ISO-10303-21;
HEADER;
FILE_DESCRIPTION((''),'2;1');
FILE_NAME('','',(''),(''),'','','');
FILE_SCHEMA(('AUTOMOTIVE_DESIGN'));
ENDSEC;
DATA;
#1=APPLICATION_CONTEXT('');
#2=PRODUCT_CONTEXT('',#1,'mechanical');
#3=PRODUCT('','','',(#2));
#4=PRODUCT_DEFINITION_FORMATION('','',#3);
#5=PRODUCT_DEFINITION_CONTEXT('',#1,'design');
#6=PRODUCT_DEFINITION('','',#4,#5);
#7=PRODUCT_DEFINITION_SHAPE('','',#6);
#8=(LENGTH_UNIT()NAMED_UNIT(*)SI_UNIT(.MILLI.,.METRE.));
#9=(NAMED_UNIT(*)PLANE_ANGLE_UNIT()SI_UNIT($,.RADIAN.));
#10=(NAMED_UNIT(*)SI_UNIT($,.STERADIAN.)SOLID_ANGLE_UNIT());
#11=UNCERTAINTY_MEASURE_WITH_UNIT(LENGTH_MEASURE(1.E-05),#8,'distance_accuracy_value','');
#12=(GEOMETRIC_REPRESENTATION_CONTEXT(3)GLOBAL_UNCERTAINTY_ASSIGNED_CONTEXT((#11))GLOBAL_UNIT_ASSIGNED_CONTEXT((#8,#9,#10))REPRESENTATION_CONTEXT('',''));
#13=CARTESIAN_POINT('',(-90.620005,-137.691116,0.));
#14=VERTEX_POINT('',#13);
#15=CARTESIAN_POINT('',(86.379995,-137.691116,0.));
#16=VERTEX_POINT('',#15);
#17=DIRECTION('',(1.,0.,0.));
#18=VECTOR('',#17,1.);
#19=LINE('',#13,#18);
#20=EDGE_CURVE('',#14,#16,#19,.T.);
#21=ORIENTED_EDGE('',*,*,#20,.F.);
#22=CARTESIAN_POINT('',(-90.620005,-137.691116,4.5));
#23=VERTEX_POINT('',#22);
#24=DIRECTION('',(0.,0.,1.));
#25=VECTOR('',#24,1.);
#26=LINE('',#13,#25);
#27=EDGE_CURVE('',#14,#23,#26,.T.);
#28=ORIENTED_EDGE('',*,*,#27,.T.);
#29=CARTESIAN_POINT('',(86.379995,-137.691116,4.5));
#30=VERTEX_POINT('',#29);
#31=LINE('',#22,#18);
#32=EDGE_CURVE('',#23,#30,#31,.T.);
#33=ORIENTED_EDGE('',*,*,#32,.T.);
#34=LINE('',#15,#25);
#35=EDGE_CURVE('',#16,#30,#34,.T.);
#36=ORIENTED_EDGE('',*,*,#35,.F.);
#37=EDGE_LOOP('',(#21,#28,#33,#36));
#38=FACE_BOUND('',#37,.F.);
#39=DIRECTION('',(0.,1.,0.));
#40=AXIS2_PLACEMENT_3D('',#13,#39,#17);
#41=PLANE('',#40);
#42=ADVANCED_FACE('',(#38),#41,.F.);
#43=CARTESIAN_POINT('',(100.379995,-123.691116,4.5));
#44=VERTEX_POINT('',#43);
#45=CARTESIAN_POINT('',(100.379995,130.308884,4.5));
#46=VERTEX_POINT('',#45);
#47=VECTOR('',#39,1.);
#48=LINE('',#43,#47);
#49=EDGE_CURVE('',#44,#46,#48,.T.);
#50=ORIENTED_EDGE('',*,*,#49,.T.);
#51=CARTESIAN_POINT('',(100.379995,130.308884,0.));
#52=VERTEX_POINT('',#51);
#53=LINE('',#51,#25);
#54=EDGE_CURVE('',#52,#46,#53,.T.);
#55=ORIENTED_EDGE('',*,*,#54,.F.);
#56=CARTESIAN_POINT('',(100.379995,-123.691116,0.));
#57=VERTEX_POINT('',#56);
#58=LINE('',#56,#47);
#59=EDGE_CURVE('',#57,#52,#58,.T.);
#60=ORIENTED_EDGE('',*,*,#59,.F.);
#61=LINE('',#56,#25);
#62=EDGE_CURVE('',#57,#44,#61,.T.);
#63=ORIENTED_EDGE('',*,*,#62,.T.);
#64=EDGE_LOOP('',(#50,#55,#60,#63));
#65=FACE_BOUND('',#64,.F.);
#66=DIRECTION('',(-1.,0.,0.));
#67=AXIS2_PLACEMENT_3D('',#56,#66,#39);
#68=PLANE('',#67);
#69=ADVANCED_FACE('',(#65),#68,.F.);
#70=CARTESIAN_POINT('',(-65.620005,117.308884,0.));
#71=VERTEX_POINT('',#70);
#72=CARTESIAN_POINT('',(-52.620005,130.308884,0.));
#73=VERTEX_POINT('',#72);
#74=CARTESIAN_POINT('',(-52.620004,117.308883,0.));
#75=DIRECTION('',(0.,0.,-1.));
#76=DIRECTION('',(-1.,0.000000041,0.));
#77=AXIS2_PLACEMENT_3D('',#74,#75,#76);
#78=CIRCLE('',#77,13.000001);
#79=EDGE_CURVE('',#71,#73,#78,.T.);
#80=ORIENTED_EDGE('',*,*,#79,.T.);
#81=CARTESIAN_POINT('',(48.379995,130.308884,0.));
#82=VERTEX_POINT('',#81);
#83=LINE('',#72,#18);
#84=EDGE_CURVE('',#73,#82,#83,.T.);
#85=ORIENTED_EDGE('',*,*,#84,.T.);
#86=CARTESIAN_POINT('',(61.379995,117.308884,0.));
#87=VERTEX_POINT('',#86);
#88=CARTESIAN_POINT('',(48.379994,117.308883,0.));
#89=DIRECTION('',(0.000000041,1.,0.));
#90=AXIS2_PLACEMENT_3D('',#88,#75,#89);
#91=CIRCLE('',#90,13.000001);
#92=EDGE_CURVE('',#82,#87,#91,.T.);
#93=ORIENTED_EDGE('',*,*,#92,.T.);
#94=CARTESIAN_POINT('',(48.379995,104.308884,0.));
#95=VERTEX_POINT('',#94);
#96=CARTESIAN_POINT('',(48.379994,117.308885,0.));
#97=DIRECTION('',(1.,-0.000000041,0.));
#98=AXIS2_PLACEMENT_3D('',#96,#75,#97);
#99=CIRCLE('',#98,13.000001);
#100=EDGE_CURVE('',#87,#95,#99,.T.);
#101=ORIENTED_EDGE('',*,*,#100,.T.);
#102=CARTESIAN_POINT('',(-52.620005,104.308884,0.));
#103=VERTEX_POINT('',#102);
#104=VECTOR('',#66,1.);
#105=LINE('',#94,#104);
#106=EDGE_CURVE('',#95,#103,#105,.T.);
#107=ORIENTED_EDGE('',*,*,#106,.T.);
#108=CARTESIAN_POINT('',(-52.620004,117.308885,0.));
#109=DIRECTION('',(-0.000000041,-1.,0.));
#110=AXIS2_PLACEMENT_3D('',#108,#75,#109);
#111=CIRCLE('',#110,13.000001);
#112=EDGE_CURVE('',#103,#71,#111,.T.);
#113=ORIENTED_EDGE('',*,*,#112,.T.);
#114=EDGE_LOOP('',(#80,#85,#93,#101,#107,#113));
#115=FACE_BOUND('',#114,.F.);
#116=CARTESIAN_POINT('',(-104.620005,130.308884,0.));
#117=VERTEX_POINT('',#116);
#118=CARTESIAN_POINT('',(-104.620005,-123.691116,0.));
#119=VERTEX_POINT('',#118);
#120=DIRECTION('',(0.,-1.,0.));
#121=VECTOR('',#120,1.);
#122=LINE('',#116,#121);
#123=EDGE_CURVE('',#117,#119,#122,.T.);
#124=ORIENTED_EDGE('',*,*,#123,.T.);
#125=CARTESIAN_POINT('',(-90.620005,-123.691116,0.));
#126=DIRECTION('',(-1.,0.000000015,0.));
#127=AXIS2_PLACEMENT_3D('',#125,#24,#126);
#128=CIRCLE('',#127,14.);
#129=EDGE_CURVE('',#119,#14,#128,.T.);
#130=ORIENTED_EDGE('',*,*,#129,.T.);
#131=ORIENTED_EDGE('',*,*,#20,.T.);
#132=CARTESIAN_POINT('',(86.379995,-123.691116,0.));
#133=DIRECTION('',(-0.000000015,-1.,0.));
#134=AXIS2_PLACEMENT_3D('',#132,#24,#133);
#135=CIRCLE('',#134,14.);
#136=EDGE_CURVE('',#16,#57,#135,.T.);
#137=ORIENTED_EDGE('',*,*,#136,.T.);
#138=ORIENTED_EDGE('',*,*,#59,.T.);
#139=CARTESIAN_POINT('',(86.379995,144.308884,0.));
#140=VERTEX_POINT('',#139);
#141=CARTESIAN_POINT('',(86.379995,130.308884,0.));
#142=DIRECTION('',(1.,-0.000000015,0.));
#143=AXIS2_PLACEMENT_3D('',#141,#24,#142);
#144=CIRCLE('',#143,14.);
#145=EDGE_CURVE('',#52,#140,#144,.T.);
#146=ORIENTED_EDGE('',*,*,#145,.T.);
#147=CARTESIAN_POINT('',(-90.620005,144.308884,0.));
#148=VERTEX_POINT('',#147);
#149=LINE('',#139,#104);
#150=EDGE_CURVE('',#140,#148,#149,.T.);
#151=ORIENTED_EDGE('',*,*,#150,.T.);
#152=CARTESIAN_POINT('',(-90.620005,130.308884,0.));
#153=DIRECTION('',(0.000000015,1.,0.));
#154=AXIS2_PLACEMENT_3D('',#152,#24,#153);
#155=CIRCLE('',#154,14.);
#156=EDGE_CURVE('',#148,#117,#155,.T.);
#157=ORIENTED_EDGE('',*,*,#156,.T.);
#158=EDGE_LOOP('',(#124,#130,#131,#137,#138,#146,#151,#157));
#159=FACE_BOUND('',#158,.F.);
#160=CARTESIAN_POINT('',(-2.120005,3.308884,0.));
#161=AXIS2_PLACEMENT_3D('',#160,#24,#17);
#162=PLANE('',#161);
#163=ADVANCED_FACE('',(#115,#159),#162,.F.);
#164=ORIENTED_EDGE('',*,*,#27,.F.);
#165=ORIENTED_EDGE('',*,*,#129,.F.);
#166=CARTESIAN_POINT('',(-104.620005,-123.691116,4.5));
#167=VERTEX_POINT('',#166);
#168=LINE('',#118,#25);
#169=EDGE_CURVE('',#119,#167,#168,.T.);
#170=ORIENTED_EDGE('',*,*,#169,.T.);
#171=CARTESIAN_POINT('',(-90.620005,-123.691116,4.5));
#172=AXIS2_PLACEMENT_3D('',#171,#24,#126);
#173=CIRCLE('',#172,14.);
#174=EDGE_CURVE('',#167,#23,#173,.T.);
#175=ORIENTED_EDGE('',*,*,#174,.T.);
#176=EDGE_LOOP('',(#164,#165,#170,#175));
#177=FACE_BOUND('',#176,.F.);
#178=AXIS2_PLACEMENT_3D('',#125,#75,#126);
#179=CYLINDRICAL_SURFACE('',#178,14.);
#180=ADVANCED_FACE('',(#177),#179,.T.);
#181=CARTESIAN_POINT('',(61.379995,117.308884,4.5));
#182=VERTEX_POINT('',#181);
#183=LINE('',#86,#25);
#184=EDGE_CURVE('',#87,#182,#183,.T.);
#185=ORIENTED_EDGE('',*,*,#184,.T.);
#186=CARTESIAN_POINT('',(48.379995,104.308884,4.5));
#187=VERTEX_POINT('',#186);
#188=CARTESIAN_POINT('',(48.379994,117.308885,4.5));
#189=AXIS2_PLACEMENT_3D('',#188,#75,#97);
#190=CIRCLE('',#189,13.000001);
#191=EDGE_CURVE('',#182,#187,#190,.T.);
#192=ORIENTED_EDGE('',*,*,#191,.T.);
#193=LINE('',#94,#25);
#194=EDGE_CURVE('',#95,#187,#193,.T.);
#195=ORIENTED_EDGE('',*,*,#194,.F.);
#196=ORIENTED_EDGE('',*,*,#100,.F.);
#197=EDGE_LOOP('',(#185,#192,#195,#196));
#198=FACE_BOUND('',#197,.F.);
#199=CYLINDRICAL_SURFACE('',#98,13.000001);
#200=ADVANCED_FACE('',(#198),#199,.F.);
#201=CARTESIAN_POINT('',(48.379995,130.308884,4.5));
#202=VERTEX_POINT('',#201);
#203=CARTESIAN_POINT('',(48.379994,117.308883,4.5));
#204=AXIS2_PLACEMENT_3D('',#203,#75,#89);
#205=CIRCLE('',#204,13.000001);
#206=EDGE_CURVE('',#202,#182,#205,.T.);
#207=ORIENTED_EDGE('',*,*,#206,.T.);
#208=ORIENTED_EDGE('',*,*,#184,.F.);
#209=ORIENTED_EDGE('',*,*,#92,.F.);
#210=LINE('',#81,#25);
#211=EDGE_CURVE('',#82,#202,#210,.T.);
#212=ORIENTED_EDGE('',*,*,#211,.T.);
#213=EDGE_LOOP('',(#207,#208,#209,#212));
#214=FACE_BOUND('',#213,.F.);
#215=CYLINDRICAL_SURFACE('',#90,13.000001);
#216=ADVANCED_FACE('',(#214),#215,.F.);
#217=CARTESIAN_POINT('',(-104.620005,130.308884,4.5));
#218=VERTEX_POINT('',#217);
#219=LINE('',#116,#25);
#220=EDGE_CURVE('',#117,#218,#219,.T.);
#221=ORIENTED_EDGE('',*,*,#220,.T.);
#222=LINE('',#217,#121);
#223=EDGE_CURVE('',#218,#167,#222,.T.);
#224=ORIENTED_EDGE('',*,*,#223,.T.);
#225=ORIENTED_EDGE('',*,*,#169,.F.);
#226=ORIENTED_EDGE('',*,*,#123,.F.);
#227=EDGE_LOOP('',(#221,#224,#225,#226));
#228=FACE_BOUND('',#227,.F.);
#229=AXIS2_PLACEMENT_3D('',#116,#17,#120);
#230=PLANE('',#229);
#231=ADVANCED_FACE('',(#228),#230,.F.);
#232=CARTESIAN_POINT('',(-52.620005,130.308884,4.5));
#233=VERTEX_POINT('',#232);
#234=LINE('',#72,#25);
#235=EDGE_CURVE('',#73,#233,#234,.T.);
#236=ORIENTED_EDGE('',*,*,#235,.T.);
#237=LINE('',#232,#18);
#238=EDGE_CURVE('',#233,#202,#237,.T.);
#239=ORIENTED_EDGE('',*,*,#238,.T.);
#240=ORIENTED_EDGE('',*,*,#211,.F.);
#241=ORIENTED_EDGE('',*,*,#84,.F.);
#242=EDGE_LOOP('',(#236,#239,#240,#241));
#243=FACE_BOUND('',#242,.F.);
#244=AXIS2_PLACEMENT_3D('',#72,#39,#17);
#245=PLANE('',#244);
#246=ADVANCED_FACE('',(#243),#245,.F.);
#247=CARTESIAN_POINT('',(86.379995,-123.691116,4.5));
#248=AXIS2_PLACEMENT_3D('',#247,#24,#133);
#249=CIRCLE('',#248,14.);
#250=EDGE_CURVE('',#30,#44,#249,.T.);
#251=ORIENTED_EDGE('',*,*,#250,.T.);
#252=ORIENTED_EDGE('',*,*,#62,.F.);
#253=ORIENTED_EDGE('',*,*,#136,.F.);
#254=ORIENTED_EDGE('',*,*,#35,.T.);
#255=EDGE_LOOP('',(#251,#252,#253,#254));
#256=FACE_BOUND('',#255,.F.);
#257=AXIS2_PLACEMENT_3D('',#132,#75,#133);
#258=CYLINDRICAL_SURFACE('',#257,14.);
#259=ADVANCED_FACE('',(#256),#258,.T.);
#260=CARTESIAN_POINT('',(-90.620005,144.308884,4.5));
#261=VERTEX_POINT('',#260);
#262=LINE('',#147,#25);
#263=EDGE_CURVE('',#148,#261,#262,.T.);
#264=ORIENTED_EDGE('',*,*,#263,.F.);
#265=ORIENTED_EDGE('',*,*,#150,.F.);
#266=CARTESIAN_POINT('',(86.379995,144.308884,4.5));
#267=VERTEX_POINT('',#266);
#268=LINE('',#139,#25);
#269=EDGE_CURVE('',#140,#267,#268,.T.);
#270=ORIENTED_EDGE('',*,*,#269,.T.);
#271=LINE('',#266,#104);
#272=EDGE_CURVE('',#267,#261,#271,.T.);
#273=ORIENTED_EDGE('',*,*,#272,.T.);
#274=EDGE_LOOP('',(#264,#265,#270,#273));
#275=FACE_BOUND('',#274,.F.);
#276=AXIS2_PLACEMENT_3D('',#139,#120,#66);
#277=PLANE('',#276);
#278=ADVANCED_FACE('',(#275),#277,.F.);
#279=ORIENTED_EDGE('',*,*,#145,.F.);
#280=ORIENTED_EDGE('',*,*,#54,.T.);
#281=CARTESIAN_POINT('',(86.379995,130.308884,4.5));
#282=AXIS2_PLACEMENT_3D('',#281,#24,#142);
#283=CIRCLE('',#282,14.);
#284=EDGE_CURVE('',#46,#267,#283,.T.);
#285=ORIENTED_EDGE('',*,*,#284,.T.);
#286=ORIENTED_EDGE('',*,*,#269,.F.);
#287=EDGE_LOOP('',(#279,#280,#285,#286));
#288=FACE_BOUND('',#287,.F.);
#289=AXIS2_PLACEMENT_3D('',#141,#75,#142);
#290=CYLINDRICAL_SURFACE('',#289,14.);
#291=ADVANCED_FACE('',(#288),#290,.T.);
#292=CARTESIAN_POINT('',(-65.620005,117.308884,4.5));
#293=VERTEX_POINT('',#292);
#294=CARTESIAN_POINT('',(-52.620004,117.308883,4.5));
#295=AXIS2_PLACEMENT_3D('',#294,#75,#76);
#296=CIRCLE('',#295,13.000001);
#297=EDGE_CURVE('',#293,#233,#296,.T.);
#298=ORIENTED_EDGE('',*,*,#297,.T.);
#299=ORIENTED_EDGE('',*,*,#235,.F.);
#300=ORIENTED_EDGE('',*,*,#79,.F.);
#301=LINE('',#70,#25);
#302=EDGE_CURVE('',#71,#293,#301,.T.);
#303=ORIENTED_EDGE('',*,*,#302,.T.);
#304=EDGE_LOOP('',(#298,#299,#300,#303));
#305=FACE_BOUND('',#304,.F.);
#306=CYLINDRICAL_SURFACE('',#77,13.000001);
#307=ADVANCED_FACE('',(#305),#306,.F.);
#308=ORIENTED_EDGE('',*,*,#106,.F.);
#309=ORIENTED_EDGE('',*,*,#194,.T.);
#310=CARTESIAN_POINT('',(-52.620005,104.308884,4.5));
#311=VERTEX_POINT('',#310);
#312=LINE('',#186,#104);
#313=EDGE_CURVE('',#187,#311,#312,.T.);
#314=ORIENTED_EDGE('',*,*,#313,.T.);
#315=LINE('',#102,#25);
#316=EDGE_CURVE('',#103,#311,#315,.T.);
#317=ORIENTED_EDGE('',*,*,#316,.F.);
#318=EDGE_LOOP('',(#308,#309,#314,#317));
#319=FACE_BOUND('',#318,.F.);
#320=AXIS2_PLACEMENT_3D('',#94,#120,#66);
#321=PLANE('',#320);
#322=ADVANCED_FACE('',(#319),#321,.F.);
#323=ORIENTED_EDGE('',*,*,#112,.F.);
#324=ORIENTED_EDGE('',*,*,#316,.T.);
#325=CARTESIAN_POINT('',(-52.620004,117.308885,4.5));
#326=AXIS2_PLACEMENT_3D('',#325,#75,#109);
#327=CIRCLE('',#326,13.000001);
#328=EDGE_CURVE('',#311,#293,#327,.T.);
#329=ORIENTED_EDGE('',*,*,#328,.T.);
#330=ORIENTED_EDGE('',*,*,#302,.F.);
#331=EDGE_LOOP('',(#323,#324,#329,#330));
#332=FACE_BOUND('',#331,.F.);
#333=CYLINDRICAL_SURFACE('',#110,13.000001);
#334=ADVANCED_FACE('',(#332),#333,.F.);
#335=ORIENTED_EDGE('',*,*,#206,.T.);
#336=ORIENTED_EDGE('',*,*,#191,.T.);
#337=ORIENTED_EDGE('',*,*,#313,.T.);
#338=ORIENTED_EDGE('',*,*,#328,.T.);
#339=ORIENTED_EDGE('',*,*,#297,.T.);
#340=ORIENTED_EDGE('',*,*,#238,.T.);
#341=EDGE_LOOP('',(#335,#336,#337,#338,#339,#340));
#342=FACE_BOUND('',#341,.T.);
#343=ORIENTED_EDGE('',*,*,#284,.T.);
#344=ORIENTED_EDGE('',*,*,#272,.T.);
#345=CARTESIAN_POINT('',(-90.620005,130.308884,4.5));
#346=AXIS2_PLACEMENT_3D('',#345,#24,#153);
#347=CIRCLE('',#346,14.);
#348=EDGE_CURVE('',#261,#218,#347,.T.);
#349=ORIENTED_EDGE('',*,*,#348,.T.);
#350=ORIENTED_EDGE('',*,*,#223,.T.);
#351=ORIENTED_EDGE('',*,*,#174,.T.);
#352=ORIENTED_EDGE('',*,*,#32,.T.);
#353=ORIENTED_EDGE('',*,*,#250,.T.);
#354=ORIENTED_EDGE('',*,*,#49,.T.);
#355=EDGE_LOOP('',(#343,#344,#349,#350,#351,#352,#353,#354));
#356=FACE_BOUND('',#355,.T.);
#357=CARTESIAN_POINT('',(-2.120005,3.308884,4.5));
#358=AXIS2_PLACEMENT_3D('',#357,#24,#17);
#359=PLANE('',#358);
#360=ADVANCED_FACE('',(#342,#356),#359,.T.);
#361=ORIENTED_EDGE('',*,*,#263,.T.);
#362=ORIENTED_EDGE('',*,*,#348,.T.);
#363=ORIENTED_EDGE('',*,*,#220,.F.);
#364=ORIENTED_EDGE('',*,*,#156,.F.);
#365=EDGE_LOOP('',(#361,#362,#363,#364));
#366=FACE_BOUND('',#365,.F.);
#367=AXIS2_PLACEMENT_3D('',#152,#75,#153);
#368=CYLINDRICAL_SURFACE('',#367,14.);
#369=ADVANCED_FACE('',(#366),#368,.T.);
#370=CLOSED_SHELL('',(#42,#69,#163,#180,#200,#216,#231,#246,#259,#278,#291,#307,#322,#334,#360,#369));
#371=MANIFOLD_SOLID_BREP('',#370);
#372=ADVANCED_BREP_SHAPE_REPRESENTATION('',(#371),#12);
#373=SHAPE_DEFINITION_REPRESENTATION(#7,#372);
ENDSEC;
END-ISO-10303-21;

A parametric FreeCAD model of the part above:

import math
import FreeCAD as App
import Part
import Sketcher

V = App.Vector

doc = App.newDocument("Part")
body = doc.addObject("PartDesign::Body", "Body")

# Sketch on XY plane
sketch1 = body.newObject("Sketcher::SketchObject", "Sketch")
sketch1.AttachmentSupport = (doc.getObject("XY_Plane"), [""])
sketch1.MapMode = "FlatFace"
sketch1.addGeometry(Part.LineSegment(V(86, 144, 0), V(-91, 144, 0)), False)
sketch1.addGeometry(Part.ArcOfCircle(Part.Circle(V(-91, 130, 0), V(0, 0, 1), 14), math.radians(90), math.radians(180)), False)
sketch1.addGeometry(Part.LineSegment(V(-105, 130, 0), V(-105, -124, 0)), False)
sketch1.addGeometry(Part.ArcOfCircle(Part.Circle(V(-91, -124, 0), V(0, 0, 1), 14), math.radians(180), math.radians(270)), False)
sketch1.addGeometry(Part.LineSegment(V(-91, -138, 0), V(86, -138, 0)), False)
sketch1.addGeometry(Part.ArcOfCircle(Part.Circle(V(86, -124, 0), V(0, 0, 1), 14), math.radians(-90), math.radians(0)), False)
sketch1.addGeometry(Part.LineSegment(V(100, -124, 0), V(100, 130, 0)), False)
sketch1.addGeometry(Part.ArcOfCircle(Part.Circle(V(86, 130, 0), V(0, 0, 1), 14), math.radians(0), math.radians(90)), False)
sketch1.addGeometry(Part.ArcOfCircle(Part.Circle(V(-53, 117, 0), V(0, 0, 1), 13), math.radians(-180), math.radians(-90)), False)
sketch1.addGeometry(Part.ArcOfCircle(Part.Circle(V(-53, 117, 0), V(0, 0, 1), 13), math.radians(90), math.radians(180)), False)
sketch1.addGeometry(Part.LineSegment(V(-53, 130, 0), V(48, 130, 0)), False)
sketch1.addGeometry(Part.ArcOfCircle(Part.Circle(V(48, 117, 0), V(0, 0, 1), 13), math.radians(0), math.radians(90)), False)
sketch1.addGeometry(Part.ArcOfCircle(Part.Circle(V(48, 117, 0), V(0, 0, 1), 13), math.radians(-90), math.radians(0)), False)
sketch1.addGeometry(Part.LineSegment(V(48, 104, 0), V(-53, 104, 0)), False)
sketch1.addConstraint(Sketcher.Constraint("Tangent", 0, 2, 1, 1))
sketch1.addConstraint(Sketcher.Constraint("Tangent", 1, 2, 2, 1))
sketch1.addConstraint(Sketcher.Constraint("Tangent", 2, 2, 3, 1))
sketch1.addConstraint(Sketcher.Constraint("Tangent", 3, 2, 4, 1))
sketch1.addConstraint(Sketcher.Constraint("Tangent", 4, 2, 5, 1))
sketch1.addConstraint(Sketcher.Constraint("Tangent", 5, 2, 6, 1))
sketch1.addConstraint(Sketcher.Constraint("Tangent", 6, 2, 7, 1))
sketch1.addConstraint(Sketcher.Constraint("Tangent", 7, 2, 0, 1))
sketch1.addConstraint(Sketcher.Constraint("Tangent", 8, 1, 9, 2))
sketch1.addConstraint(Sketcher.Constraint("Tangent", 9, 1, 10, 1))
sketch1.addConstraint(Sketcher.Constraint("Tangent", 10, 2, 11, 2))
sketch1.addConstraint(Sketcher.Constraint("Tangent", 11, 1, 12, 2))
sketch1.addConstraint(Sketcher.Constraint("Tangent", 12, 1, 13, 1))
sketch1.addConstraint(Sketcher.Constraint("Tangent", 13, 2, 8, 2))
sketch1.addConstraint(Sketcher.Constraint("Horizontal", 0))
sketch1.addConstraint(Sketcher.Constraint("Vertical", 2))
sketch1.addConstraint(Sketcher.Constraint("Horizontal", 4))
sketch1.addConstraint(Sketcher.Constraint("Vertical", 6))
sketch1.addConstraint(Sketcher.Constraint("Horizontal", 10))
sketch1.addConstraint(Sketcher.Constraint("Horizontal", 13))
sketch1.addConstraint(Sketcher.Constraint("Equal", 1, 3))
sketch1.addConstraint(Sketcher.Constraint("Equal", 3, 5))
sketch1.addConstraint(Sketcher.Constraint("Equal", 5, 7))
sketch1.addConstraint(Sketcher.Constraint("Equal", 8, 9))
sketch1.addConstraint(Sketcher.Constraint("Equal", 9, 11))
sketch1.addConstraint(Sketcher.Constraint("Horizontal", 12, 3, 8, 1))
sketch1.addConstraint(Sketcher.Constraint("Horizontal", 6, 2, 9, 1))
sketch1.addConstraint(Sketcher.Constraint("Horizontal", 8, 1, 11, 1))
sketch1.addConstraint(Sketcher.Constraint("Radius", 1, 14.0))
sketch1.addConstraint(Sketcher.Constraint("Radius", 8, 13.000001))
sketch1.addConstraint(Sketcher.Constraint("DistanceX", 0, 2, 0, 1, 177.0))
sketch1.addConstraint(Sketcher.Constraint("DistanceX", 10, 1, 10, 2, 101.0))
sketch1.addConstraint(Sketcher.Constraint("DistanceY", 2, 2, 2, 1, 254.0))
sketch1.addConstraint(Sketcher.Constraint("DistanceX", 1, 3, 8, 3, 38.000001))
sketch1.addConstraint(Sketcher.Constraint("DistanceX", 1, 3, -1, 1, 90.620005))
sketch1.addConstraint(Sketcher.Constraint("DistanceY", -1, 1, 1, 3, 130.308884))
pad1 = body.newObject("PartDesign::Pad", "Pad")
pad1.Profile = sketch1
pad1.Length = 4.5

doc.recompute()
